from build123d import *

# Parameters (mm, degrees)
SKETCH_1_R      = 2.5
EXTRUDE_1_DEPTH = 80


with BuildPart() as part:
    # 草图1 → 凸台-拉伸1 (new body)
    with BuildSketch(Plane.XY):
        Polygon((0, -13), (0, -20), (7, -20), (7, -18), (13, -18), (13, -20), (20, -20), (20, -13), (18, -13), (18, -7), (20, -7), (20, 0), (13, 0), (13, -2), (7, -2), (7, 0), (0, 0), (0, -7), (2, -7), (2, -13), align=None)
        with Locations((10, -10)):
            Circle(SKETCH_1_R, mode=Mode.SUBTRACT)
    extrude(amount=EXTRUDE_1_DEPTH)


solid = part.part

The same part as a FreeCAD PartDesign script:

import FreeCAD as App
import Part
import Sketcher
from FreeCAD import Vector


def add_polygon(sketch, points):
    """Adds a closed chain of lines whose ends are joined by coincident constraints."""
    first, n = sketch.GeometryCount, len(points)
    for a, b in zip(points, points[1:] + points[:1]):
        sketch.addGeometry(Part.LineSegment(App.Vector(*a, 0), App.Vector(*b, 0)), False)
    for i in range(n):
        sketch.addConstraint(Sketcher.Constraint("Coincident", first + i, 2, first + (i + 1) % n, 1))

doc = App.newDocument("Part")
body = doc.addObject("PartDesign::Body", "Body")

# Sketch on XY plane
sketch1 = body.newObject("Sketcher::SketchObject", "Sketch")
sketch1.AttachmentSupport = (doc.getObject("XY_Plane"), [""])
sketch1.MapMode = "FlatFace"
add_polygon(sketch1, [(0, -13), (0, -20), (7, -20), (7, -18), (13, -18), (13, -20), (20, -20), (20, -13), (18, -13), (18, -7), (20, -7), (20, 0), (13, 0), (13, -2), (7, -2), (7, 0), (0, 0), (0, -7), (2, -7), (2, -13)])  # lines 0-19
sketch1.addGeometry(Part.Circle(Vector(10, -10, 0), Vector(0, 0, 1), 2.5), False)  # 20
sketch1.addConstraint([
    Sketcher.Constraint("Vertical", 0),
    Sketcher.Constraint("Horizontal", 1),
    Sketcher.Constraint("Vertical", 2),
    Sketcher.Constraint("Horizontal", 3),
    Sketcher.Constraint("Vertical", 4),
    Sketcher.Constraint("Horizontal", 5),
    Sketcher.Constraint("Vertical", 6),
    Sketcher.Constraint("Horizontal", 7),
    Sketcher.Constraint("Vertical", 8),
    Sketcher.Constraint("Horizontal", 9),
    Sketcher.Constraint("Vertical", 10),
    Sketcher.Constraint("Horizontal", 11),
    Sketcher.Constraint("Vertical", 12),
    Sketcher.Constraint("Horizontal", 13),
    Sketcher.Constraint("Vertical", 14),
    Sketcher.Constraint("Horizontal", 15),
    Sketcher.Constraint("Vertical", 16),
    Sketcher.Constraint("Horizontal", 17),
    Sketcher.Constraint("Vertical", 18),
    Sketcher.Constraint("Horizontal", 19),
    Sketcher.Constraint("Coincident", 15, 2, -1, 1),
    Sketcher.Constraint("PointOnObject", 0, 2, -2),
    Sketcher.Constraint("PointOnObject", 10, 2, -1),
    Sketcher.Constraint("Horizontal", 1, 2, 4, 2),
    Sketcher.Constraint("Horizontal", 9, 2, 16, 2),
    Sketcher.Constraint("Horizontal", 7, 2, 18, 2),
    Sketcher.Constraint("Vertical", 6, 2, 9, 2),
    Sketcher.Constraint("Vertical", 4, 2, 11, 2),
    Sketcher.Constraint("Vertical", 2, 2, 13, 2),
    Sketcher.Constraint("Equal", 1, 5),
    Sketcher.Constraint("Equal", 9, 17),
    Sketcher.Constraint("Equal", 15, 0),
    Sketcher.Constraint("Equal", 19, 2),
    Sketcher.Constraint("Equal", 13, 8),
    Sketcher.Constraint("Equal", 6, 10),
    Sketcher.Constraint("Equal", 4, 12),
    Sketcher.Constraint("Diameter", 20, 5.0),
    Sketcher.Constraint("DistanceX", 1, 1, 1, 2, 7.0),
    Sketcher.Constraint("DistanceX", 3, 1, 3, 2, 6.0),
    Sketcher.Constraint("DistanceX", 7, 2, 7, 1, 2.0),
    Sketcher.Constraint("DistanceX", -1, 1, 20, 3, 10.0),
    Sketcher.Constraint("DistanceY", 20, 3, -1, 1, 10.0),
])
pad1 = body.newObject("PartDesign::Pad", "Pad")
pad1.Profile = sketch1
pad1.Length = 80

doc.recompute()
